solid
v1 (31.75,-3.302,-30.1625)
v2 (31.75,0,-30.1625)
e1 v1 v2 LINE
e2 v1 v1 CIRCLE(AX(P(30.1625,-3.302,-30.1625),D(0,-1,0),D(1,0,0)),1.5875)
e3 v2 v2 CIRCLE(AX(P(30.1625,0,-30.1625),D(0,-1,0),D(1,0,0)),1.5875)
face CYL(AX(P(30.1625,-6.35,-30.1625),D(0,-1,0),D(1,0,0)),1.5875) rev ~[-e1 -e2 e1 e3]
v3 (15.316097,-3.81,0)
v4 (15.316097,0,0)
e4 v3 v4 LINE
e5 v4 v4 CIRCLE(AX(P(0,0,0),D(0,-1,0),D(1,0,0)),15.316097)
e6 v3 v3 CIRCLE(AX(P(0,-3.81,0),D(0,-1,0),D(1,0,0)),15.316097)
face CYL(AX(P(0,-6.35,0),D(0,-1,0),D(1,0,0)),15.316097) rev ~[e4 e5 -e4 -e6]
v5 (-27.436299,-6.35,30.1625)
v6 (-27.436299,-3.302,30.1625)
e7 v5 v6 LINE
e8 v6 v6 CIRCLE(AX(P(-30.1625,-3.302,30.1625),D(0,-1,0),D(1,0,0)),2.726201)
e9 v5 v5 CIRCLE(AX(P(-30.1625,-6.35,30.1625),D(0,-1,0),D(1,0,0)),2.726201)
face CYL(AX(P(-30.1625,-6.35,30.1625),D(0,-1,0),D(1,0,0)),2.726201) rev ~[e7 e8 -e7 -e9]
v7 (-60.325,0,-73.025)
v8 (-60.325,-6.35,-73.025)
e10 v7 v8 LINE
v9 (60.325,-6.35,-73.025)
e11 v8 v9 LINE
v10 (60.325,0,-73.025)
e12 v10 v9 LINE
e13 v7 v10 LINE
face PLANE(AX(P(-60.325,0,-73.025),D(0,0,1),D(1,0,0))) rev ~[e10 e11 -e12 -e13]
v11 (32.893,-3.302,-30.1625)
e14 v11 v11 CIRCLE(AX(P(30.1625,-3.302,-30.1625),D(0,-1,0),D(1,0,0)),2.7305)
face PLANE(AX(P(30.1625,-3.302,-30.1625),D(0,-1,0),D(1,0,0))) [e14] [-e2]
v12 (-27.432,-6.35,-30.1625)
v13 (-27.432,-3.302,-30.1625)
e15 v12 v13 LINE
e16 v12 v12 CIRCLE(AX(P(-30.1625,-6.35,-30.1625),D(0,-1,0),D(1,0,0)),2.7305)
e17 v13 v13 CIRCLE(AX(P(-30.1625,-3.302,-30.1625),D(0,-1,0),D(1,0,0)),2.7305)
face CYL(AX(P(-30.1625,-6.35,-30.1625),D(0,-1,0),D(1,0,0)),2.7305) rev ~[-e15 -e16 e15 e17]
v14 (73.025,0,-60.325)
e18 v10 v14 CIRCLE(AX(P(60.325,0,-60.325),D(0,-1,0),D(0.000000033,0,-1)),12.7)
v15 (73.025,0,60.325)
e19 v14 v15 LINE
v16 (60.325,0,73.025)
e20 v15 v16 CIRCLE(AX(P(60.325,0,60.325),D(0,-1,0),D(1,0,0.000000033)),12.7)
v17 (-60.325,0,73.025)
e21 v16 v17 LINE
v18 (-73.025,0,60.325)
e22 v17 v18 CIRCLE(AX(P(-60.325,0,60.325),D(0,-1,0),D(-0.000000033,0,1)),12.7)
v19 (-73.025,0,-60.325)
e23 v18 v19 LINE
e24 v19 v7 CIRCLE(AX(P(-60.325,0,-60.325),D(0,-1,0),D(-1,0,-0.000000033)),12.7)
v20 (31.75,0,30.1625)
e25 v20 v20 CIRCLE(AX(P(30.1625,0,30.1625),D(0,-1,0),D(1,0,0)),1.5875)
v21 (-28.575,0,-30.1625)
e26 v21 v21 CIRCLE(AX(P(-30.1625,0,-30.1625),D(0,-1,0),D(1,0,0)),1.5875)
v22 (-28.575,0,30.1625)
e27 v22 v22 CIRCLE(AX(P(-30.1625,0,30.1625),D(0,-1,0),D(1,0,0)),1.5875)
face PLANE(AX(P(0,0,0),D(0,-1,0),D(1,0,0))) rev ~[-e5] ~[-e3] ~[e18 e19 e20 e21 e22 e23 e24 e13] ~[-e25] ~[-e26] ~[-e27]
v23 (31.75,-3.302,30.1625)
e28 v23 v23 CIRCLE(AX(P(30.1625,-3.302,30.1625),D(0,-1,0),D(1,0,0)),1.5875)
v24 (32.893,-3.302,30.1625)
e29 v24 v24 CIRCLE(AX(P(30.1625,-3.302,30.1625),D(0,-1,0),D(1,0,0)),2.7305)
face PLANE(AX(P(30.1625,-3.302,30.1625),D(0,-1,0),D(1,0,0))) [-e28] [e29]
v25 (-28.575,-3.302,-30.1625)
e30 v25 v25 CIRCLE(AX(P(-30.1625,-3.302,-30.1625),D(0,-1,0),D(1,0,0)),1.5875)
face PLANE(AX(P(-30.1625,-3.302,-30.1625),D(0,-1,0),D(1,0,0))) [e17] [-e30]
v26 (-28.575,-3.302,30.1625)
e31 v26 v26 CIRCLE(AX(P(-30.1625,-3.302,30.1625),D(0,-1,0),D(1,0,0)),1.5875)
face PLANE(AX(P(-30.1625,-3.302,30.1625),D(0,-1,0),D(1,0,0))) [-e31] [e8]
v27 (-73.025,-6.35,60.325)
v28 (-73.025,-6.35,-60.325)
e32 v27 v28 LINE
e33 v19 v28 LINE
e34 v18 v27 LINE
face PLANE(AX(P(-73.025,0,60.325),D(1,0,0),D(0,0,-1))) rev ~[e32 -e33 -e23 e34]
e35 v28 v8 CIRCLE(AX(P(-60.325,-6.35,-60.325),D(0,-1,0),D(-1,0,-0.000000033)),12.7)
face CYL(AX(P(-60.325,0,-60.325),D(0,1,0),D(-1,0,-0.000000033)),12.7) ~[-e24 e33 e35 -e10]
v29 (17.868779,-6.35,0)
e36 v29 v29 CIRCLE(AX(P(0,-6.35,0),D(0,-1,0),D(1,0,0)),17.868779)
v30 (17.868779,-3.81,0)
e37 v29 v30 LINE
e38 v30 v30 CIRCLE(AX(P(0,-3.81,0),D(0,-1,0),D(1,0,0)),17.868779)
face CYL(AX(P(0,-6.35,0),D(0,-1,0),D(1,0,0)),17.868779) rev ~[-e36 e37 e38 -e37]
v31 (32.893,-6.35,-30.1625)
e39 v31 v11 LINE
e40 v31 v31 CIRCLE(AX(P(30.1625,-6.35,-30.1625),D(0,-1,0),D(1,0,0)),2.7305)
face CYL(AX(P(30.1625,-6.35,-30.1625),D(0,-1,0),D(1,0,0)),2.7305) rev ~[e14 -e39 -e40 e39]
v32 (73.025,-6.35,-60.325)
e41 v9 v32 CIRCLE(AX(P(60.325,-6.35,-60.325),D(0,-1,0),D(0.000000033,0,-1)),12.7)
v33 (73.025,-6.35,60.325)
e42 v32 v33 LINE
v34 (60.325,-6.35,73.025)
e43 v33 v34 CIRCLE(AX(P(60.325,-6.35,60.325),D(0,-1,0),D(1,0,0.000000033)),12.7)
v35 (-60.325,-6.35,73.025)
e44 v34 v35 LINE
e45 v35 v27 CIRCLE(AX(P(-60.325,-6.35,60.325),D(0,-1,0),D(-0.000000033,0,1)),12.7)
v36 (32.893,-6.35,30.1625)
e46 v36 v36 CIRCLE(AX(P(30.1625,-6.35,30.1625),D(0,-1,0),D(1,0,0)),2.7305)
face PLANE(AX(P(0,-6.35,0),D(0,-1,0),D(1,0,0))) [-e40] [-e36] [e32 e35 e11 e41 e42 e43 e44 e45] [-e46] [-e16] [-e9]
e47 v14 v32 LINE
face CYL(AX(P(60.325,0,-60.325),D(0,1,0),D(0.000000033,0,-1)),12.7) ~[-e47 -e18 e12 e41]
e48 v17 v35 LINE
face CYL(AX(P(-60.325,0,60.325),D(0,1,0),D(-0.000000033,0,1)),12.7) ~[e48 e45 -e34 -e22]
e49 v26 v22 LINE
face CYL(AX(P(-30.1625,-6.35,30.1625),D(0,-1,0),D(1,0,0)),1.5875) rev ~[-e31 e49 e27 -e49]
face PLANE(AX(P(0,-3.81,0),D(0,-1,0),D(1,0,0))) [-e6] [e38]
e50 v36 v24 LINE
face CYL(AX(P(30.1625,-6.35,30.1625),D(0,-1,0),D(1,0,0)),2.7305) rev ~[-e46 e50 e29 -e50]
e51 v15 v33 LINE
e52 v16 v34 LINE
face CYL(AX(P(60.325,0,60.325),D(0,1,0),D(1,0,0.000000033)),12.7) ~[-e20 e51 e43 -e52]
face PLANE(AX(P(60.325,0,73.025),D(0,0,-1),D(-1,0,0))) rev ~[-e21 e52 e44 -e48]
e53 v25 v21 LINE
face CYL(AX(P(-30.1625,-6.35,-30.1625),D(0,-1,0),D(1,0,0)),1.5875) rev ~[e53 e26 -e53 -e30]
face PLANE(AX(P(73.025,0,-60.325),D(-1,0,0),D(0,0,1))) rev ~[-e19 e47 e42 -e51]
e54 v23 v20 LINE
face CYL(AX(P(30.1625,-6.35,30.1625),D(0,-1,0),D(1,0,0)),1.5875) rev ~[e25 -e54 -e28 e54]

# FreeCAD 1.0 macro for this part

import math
import FreeCAD as App
import Part
import Sketcher

V = App.Vector
Q = App.Units.Quantity

doc = App.newDocument("Part")
body = doc.addObject("PartDesign::Body", "Body")

sketch1 = body.newObject("Sketcher::SketchObject", "Sketch")
sketch1.AttachmentSupport = (doc.getObject("XZ_Plane"), [""])
sketch1.MapMode = "FlatFace"
sketch1.addGeometry([
    Part.ArcOfCircle(Part.Circle(V(60.325, 60.325, 0), V(0, 0, 1), 12.7), math.radians(0.000002), math.radians(89.999998)),
    Part.LineSegment(V(60.325, 73.025, 0), V(-60.325, 73.025, 0)),
    Part.ArcOfCircle(Part.Circle(V(-60.325, 60.325, 0), V(0, 0, 1), 12.7), math.radians(90.000002), math.radians(179.999998)),
    Part.LineSegment(V(-73.025, 60.325, 0), V(-73.025, -60.325, 0)),
    Part.ArcOfCircle(Part.Circle(V(-60.325, -60.325, 0), V(0, 0, 1), 12.7), math.radians(-179.999998), math.radians(-90.000002)),
    Part.LineSegment(V(-60.325, -73.025, 0), V(60.325, -73.025, 0)),
    Part.ArcOfCircle(Part.Circle(V(60.325, -60.325, 0), V(0, 0, 1), 12.7), math.radians(-89.999998), math.radians(-0.000002)),
    Part.LineSegment(V(73.025, -60.325, 0), V(73.025, 60.325, 0)),
], False)
sketch1.addConstraint([
    Sketcher.Constraint("Tangent", 0, 2, 1, 1),
    Sketcher.Constraint("Tangent", 1, 2, 2, 1),
    Sketcher.Constraint("Tangent", 2, 2, 3, 1),
    Sketcher.Constraint("Tangent", 3, 2, 4, 1),
    Sketcher.Constraint("Tangent", 4, 2, 5, 1),
    Sketcher.Constraint("Tangent", 5, 2, 6, 1),
    Sketcher.Constraint("Tangent", 6, 2, 7, 1),
    Sketcher.Constraint("Tangent", 7, 2, 0, 1),
    Sketcher.Constraint("Horizontal", 1),
    Sketcher.Constraint("Vertical", 3),
    Sketcher.Constraint("Horizontal", 5),
    Sketcher.Constraint("Vertical", 7),
    Sketcher.Constraint("Equal", 0, 2),
    Sketcher.Constraint("Equal", 2, 4),
    Sketcher.Constraint("Equal", 4, 6),
    Sketcher.Constraint("Symmetric", 0, 3, 4, 3, -1, 1),
    Sketcher.Constraint("Equal", 5, 3),
    Sketcher.Constraint("Radius", 0, Q("0.5 in")),
    Sketcher.Constraint("DistanceX", 1, 2, 1, 1, Q("4.75 in")),
])
pad1 = body.newObject("PartDesign::Pad", "Pad")
pad1.Profile = sketch1
pad1.Length = Q("0.25 in")

sketch2 = body.newObject("Sketcher::SketchObject", "Sketch001")
sketch2.AttachmentSupport = (doc.getObject("XZ_Plane"), [""])
sketch2.MapMode = "FlatFace"
sketch2.AttachmentOffset = App.Placement(V(0, 0, 0.25 * 25.4), App.Rotation())
sketch2.addGeometry(Part.Circle(V(0, 0, 0), V(0, 0, 1), 15.316097), False)
sketch2.addConstraint([
    Sketcher.Constraint("Coincident", 0, 3, -1, 1),
    Sketcher.Constraint("Diameter", 0, Q("30.632194 mm")),
])
pocket1 = body.newObject("PartDesign::Pocket", "Pocket")
pocket1.Profile = sketch2
pocket1.Length = Q("0.25 in")

sketch3 = body.newObject("Sketcher::SketchObject", "Sketch002")
sketch3.AttachmentSupport = (doc.getObject("XZ_Plane"), [""])
sketch3.MapMode = "FlatFace"
sketch3.AttachmentOffset = App.Placement(V(0, 0, 0.25 * 25.4), App.Rotation())
sketch3.addGeometry([
    Part.Circle(V(0, 0, 0), V(0, 0, 1), 17.868779),
    Part.Circle(V(0, 0, 0), V(0, 0, 1), 15.316097),
], False)
sketch3.addConstraint([
    Sketcher.Constraint("Coincident", 0, 3, -1, 1),
    Sketcher.Constraint("Coincident", 1, 3, -1, 1),
    Sketcher.Constraint("Diameter", 0, Q("35.737558 mm")),
    Sketcher.Constraint("Diameter", 1, Q("30.632194 mm")),
])
pocket2 = body.newObject("PartDesign::Pocket", "Pocket001")
pocket2.Profile = sketch3
pocket2.Length = Q("0.1 in")

sketch4 = body.newObject("Sketcher::SketchObject", "Sketch003")
sketch4.AttachmentSupport = (doc.getObject("XZ_Plane"), [""])
sketch4.MapMode = "FlatFace"
sketch4.AttachmentOffset = App.Placement(V(0, 0, 0.25 * 25.4), App.Rotation())
sketch4.addGeometry([
    Part.Circle(V(30.1625, 30.1625, 0), V(0, 0, 1), 1.5875),
    Part.Circle(V(30.1625, -30.1625, 0), V(0, 0, 1), 1.5875),
    Part.Circle(V(-30.1625, 30.1625, 0), V(0, 0, 1), 1.5875),
    Part.Circle(V(-30.1625, -30.1625, 0), V(0, 0, 1), 1.5875),
], False)
sketch4.addConstraint([
    Sketcher.Constraint("Equal", 0, 1),
    Sketcher.Constraint("Equal", 1, 2),
    Sketcher.Constraint("Equal", 2, 3),
    Sketcher.Constraint("Symmetric", 1, 3, 2, 3, -1, 1),
    Sketcher.Constraint("Symmetric", 0, 3, 3, 3, -1, 1),
    Sketcher.Constraint("Symmetric", 0, 3, 2, 3, -2),
    Sketcher.Constraint("Diameter", 0, Q("0.125 in")),
    Sketcher.Constraint("DistanceX", -1, 1, 0, 3, Q("1.1875 in")),
    Sketcher.Constraint("DistanceY", -1, 1, 0, 3, Q("1.1875 in")),
])
pocket3 = body.newObject("PartDesign::Pocket", "Pocket002")
pocket3.Profile = sketch4
pocket3.Length = Q("0.25 in")

sketch5 = body.newObject("Sketcher::SketchObject", "Sketch004")
sketch5.AttachmentSupport = (doc.getObject("XZ_Plane"), [""])
sketch5.MapMode = "FlatFace"
sketch5.AttachmentOffset = App.Placement(V(0, 0, 0.25 * 25.4), App.Rotation())
sketch5.addGeometry([
    Part.Circle(V(-30.1625, -30.1625, 0), V(0, 0, 1), 2.7305),
    Part.Circle(V(-30.1625, -30.1625, 0), V(0, 0, 1), 1.5875),
    Part.Circle(V(30.1625, -30.1625, 0), V(0, 0, 1), 2.7305),
    Part.Circle(V(30.1625, -30.1625, 0), V(0, 0, 1), 1.5875),
    Part.Circle(V(30.1625, 30.1625, 0), V(0, 0, 1), 2.7305),
    Part.Circle(V(30.1625, 30.1625, 0), V(0, 0, 1), 1.5875),
    Part.Circle(V(-30.1625, 30.1625, 0), V(0, 0, 1), 2.726201),
    Part.Circle(V(-30.1625, 30.1625, 0), V(0, 0, 1), 1.5875),
], False)
sketch5.addConstraint([
    Sketcher.Constraint("Coincident", 1, 3, 0, 3),
    Sketcher.Constraint("Coincident", 3, 3, 2, 3),
    Sketcher.Constraint("Coincident", 5, 3, 4, 3),
    Sketcher.Constraint("Coincident", 7, 3, 6, 3),
    Sketcher.Constraint("Equal", 0, 2),
    Sketcher.Constraint("Equal", 1, 3),
    Sketcher.Constraint("Equal", 2, 4),
    Sketcher.Constraint("Equal", 3, 5),
    Sketcher.Constraint("Equal", 5, 7),
    Sketcher.Constraint("Symmetric", 0, 3, 4, 3, -1, 1),
    Sketcher.Constraint("Symmetric", 2, 3, 6, 3, -1, 1),
    Sketcher.Constraint("Symmetric", 0, 3, 2, 3, -2),
    Sketcher.Constraint("Diameter", 0, Q("0.215 in")),
    Sketcher.Constraint("Diameter", 1, Q("0.125 in")),
    Sketcher.Constraint("DistanceX", 0, 3, -1, 1, Q("1.1875 in")),
    Sketcher.Constraint("DistanceY", 0, 3, -1, 1, Q("1.1875 in")),
    Sketcher.Constraint("Diameter", 6, Q("5.452402 mm")),
])
pocket4 = body.newObject("PartDesign::Pocket", "Pocket003")
pocket4.Profile = sketch5
pocket4.Length = Q("0.12 in")

doc.recompute()
